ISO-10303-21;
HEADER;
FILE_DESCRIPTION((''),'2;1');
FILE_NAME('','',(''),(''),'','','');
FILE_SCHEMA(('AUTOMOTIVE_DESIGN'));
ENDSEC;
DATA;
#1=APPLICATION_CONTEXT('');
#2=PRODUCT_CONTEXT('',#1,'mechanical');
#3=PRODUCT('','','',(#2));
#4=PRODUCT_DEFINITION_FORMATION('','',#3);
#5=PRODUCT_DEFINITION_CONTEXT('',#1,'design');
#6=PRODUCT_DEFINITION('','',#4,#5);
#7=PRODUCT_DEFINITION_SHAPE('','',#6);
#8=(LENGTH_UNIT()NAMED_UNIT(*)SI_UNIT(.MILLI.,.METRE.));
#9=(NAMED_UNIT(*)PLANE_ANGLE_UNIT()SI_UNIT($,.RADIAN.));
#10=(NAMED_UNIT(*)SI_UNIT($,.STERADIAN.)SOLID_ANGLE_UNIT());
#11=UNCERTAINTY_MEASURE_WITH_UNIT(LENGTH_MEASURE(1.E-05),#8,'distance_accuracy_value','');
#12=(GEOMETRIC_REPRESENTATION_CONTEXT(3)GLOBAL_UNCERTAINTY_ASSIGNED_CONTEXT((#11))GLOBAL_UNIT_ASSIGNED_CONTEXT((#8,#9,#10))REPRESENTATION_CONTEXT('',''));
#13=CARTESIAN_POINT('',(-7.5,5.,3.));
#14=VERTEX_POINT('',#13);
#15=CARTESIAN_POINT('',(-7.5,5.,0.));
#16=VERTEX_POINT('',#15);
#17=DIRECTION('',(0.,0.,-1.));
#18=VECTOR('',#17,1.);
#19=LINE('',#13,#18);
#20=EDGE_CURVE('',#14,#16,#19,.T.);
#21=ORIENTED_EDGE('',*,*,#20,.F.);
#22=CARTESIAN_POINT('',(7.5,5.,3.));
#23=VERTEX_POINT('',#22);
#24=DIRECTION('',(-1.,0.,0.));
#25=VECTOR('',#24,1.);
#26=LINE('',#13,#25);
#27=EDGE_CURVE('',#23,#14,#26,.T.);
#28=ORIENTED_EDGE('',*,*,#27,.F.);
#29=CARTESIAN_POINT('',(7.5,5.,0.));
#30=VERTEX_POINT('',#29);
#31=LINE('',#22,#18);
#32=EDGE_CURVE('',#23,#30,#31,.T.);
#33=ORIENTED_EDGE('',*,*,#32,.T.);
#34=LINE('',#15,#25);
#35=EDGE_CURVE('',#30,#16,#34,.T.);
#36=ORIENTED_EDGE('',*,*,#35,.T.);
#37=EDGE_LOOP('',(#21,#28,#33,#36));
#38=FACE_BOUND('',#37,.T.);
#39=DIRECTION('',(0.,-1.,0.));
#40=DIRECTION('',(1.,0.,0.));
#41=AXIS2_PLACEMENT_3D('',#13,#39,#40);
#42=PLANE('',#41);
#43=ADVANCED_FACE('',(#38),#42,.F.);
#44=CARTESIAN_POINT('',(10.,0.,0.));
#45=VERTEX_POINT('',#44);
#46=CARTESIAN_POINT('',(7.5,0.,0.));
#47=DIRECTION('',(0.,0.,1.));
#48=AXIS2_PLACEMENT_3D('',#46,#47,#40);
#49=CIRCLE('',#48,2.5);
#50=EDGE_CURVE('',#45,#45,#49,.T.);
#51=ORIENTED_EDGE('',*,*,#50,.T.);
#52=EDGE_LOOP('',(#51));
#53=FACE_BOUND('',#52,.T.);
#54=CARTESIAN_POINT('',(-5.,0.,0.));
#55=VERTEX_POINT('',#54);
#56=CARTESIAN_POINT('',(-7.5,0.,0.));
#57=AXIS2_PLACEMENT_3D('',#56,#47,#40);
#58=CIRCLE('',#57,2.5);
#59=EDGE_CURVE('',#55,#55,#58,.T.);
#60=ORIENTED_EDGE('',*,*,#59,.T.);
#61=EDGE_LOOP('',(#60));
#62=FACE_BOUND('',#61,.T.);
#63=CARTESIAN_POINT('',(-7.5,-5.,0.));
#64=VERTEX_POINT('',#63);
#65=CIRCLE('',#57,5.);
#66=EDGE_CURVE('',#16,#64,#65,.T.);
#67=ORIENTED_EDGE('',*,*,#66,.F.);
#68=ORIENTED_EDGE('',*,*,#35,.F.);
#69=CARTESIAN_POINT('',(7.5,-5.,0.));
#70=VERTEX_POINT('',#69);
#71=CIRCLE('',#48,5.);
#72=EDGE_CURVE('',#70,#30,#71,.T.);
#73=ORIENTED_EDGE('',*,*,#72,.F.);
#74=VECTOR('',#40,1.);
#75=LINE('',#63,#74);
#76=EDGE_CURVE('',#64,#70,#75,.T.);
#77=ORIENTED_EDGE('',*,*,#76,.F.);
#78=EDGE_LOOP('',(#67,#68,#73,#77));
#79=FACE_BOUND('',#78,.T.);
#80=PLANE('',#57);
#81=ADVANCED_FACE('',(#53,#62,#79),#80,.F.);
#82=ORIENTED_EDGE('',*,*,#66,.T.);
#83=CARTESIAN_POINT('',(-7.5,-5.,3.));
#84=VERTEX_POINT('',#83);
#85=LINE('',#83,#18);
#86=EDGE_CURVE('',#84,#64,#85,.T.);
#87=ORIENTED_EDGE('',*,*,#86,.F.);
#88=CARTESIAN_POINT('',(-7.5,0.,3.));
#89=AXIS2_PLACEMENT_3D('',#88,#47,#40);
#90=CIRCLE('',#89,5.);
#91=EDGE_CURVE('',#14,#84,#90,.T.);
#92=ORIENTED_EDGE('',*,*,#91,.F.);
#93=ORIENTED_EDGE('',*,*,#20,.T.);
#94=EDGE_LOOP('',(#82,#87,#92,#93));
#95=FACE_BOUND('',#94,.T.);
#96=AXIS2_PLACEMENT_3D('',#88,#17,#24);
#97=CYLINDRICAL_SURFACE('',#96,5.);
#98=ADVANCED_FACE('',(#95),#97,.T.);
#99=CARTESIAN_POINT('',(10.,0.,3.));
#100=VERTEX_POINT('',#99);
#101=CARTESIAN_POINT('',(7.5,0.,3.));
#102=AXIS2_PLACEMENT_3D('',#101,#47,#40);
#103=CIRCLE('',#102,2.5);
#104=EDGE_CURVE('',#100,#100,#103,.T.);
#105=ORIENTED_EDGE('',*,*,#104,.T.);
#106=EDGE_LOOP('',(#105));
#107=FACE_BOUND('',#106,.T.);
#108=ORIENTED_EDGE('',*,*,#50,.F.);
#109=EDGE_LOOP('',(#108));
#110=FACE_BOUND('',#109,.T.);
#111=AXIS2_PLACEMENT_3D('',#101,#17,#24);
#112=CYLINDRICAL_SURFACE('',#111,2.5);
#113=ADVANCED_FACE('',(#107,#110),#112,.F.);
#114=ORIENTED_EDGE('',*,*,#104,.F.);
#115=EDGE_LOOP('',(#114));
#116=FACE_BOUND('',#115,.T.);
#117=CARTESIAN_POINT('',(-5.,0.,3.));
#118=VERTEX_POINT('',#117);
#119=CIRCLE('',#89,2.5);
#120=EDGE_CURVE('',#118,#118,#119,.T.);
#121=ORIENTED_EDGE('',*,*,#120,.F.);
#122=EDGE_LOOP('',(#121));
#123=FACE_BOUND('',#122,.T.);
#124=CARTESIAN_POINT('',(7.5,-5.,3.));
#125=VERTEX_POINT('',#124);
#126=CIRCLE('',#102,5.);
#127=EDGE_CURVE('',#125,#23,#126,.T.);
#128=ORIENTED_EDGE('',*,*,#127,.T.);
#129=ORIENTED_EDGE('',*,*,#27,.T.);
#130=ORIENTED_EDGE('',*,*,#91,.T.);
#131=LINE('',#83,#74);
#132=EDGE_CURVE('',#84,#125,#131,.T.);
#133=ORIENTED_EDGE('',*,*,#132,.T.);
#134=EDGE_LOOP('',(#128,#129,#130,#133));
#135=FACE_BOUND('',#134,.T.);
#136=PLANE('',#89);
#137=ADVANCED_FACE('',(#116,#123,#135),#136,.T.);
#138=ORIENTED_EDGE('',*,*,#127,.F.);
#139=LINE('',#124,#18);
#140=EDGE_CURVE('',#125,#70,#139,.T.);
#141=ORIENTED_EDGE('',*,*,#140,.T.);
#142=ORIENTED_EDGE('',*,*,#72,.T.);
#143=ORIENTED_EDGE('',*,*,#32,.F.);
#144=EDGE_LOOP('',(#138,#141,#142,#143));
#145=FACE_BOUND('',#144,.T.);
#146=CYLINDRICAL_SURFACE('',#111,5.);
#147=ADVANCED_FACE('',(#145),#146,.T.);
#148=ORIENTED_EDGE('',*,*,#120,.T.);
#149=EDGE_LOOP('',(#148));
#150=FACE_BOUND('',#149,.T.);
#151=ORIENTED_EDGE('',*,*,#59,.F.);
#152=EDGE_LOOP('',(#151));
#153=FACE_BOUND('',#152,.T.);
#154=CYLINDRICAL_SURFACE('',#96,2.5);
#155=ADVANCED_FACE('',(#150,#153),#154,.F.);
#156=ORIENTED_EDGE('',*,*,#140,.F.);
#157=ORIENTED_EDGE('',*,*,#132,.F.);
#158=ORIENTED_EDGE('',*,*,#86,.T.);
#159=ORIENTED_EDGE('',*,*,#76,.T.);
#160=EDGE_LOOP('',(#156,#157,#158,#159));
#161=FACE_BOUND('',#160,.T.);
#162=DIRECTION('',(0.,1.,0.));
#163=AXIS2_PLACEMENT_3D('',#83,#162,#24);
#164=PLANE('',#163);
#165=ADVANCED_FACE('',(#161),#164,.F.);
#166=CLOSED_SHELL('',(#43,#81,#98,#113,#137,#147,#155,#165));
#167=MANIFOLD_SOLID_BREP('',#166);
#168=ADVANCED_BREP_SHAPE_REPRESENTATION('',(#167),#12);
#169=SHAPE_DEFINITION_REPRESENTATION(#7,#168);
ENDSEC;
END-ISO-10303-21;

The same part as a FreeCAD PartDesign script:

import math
import FreeCAD as App
import Part
import Sketcher
from FreeCAD import Vector
Q = App.Units.Quantity

doc = App.newDocument("Part")
body = doc.addObject("PartDesign::Body", "Body")

# Sketch on XY plane
sketch1 = body.newObject("Sketcher::SketchObject", "Sketch")
sketch1.AttachmentSupport = (doc.getObject("XY_Plane"), [""])
sketch1.MapMode = "FlatFace"
sketch1.addGeometry([
    Part.LineSegment(Vector(7.5, 5, 0), Vector(-7.5, 5, 0)),  # 0
    Part.ArcOfCircle(Part.Circle(Vector(-7.5, 0, 0), Vector(0, 0, 1), 5), math.radians(90), math.radians(270)),  # 1
    Part.LineSegment(Vector(-7.5, -5, 0), Vector(7.5, -5, 0)),  # 2
    Part.ArcOfCircle(Part.Circle(Vector(7.5, 0, 0), Vector(0, 0, 1), 5), math.radians(-90), math.radians(90)),  # 3
    Part.Circle(Vector(7.5, 0, 0), Vector(0, 0, 1), 2.5),  # 4
    Part.Circle(Vector(-7.5, 0, 0), Vector(0, 0, 1), 2.5),  # 5
], False)
sketch1.addConstraint([
    Sketcher.Constraint("Tangent", 0, 2, 1, 1),
    Sketcher.Constraint("Tangent", 1, 2, 2, 1),
    Sketcher.Constraint("Tangent", 2, 2, 3, 1),
    Sketcher.Constraint("Tangent", 3, 2, 0, 1),
    Sketcher.Constraint("Horizontal", 0),
    Sketcher.Constraint("Horizontal", 2),
    Sketcher.Constraint("Coincident", 4, 3, 3, 3),
    Sketcher.Constraint("Coincident", 5, 3, 1, 3),
    Sketcher.Constraint("Equal", 4, 5),
    Sketcher.Constraint("Symmetric", 1, 3, 3, 3, -1, 1),
    Sketcher.Constraint("Diameter", 4, Q("5 mm")),
    Sketcher.Constraint("Radius", 1, Q("5 mm")),
    Sketcher.Constraint("DistanceX", 0, 2, 0, 1, Q("15 mm")),
])
pad1 = body.newObject("PartDesign::Pad", "Pad")
pad1.Profile = sketch1
pad1.Length = 3

doc.recompute()
